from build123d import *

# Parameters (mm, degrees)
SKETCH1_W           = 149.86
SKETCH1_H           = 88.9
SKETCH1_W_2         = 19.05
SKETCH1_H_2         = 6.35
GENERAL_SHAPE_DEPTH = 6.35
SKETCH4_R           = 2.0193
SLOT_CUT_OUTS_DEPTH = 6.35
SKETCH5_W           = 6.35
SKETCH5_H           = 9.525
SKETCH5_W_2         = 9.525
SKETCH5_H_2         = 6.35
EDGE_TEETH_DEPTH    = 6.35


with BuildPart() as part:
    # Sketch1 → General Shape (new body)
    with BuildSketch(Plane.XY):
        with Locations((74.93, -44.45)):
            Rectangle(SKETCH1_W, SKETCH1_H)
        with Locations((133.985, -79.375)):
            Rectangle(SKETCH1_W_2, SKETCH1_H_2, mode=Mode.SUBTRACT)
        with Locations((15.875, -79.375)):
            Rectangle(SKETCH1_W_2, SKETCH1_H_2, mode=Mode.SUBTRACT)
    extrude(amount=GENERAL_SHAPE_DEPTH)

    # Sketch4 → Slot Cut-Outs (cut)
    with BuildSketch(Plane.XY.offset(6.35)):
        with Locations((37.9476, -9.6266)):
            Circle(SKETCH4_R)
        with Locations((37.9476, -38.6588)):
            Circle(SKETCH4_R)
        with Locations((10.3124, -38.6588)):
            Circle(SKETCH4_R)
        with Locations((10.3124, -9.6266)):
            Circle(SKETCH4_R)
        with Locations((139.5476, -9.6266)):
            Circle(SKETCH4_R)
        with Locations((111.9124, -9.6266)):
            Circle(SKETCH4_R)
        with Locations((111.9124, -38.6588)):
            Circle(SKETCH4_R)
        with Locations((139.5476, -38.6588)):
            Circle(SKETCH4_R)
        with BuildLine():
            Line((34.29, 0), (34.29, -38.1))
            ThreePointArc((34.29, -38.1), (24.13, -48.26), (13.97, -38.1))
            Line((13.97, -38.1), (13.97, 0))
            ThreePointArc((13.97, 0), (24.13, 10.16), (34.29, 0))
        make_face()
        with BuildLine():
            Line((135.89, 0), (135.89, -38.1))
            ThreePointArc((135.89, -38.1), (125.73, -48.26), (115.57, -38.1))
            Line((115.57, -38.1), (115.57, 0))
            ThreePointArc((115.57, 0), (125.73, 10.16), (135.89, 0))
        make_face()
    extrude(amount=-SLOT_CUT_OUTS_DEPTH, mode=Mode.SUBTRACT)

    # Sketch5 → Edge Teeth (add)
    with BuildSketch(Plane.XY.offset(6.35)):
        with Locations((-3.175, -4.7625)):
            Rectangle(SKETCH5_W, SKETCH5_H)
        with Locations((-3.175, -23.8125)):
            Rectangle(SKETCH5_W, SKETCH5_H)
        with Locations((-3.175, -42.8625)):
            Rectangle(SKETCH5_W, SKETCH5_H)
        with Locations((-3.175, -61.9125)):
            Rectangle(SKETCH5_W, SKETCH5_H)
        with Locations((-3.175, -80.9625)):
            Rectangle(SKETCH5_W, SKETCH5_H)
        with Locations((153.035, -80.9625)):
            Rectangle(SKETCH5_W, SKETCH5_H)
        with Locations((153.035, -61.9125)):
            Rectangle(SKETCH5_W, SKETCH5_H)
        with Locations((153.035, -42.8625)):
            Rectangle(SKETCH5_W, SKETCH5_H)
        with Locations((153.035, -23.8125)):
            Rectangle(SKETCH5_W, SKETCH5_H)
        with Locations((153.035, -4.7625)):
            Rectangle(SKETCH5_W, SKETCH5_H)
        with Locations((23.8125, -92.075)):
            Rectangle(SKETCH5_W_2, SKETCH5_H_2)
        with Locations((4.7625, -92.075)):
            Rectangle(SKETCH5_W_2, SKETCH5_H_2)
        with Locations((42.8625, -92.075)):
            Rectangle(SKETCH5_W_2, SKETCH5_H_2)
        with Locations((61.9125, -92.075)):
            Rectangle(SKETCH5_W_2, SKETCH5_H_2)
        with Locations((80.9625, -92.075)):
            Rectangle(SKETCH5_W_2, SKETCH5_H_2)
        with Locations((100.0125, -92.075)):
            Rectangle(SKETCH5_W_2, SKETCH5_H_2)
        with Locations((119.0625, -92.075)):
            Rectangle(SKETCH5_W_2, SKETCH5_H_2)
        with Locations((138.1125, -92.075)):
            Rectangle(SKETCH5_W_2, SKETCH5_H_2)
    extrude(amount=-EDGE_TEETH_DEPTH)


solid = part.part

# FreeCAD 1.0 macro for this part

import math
import FreeCAD as App
import Part
import Sketcher
from FreeCAD import Vector
Q = App.Units.Quantity


def add_polygon(sketch, points):
    """Adds a closed chain of lines whose ends are joined by coincident constraints."""
    first, n = sketch.GeometryCount, len(points)
    for a, b in zip(points, points[1:] + points[:1]):
        sketch.addGeometry(Part.LineSegment(App.Vector(*a, 0), App.Vector(*b, 0)), False)
    for i in range(n):
        sketch.addConstraint(Sketcher.Constraint("Coincident", first + i, 2, first + (i + 1) % n, 1))

doc = App.newDocument("Part")
body = doc.addObject("PartDesign::Body", "Body")

sketch1 = body.newObject("Sketcher::SketchObject", "Sketch")
sketch1.AttachmentSupport = (doc.getObject("XY_Plane"), [""])
sketch1.MapMode = "FlatFace"
add_polygon(sketch1, [(0, 0), (0, -89), (150, -89), (150, 0)])
add_polygon(sketch1, [(25, -83), (6, -83), (6, -76), (25, -76)])
add_polygon(sketch1, [(144, -83), (124, -83), (124, -76), (144, -76)])
sketch1.addConstraint([
    Sketcher.Constraint("Vertical", 0),
    Sketcher.Constraint("Horizontal", 1),
    Sketcher.Constraint("Vertical", 2),
    Sketcher.Constraint("Horizontal", 3),
    Sketcher.Constraint("Horizontal", 4),
    Sketcher.Constraint("Vertical", 5),
    Sketcher.Constraint("Horizontal", 6),
    Sketcher.Constraint("Vertical", 7),
    Sketcher.Constraint("Horizontal", 8),
    Sketcher.Constraint("Vertical", 9),
    Sketcher.Constraint("Horizontal", 10),
    Sketcher.Constraint("Vertical", 11),
    Sketcher.Constraint("Coincident", 3, 2, -1, 1),
    Sketcher.Constraint("Horizontal", 7, 2, 8, 2),
    Sketcher.Constraint("Horizontal", 6, 2, 9, 2),
    Sketcher.Constraint("Equal", 6, 8),
    Sketcher.Constraint("DistanceX", 1, 1, 1, 2, Q("5.9 in")),
    Sketcher.Constraint("DistanceY", 0, 2, 0, 1, Q("3.5 in")),
    Sketcher.Constraint("DistanceY", 5, 2, -1, 1, Q("3 in")),
    Sketcher.Constraint("DistanceX", -1, 1, 6, 2, Q("1 in")),
    Sketcher.Constraint("DistanceX", 8, 2, 1, 2, Q("1 in")),
    Sketcher.Constraint("DistanceX", 4, 2, 4, 1, Q("0.75 in")),
    Sketcher.Constraint("DistanceY", 5, 1, 5, 2, Q("0.25 in")),
])
pad1 = body.newObject("PartDesign::Pad", "Pad")
pad1.Profile = sketch1
pad1.Length = Q("0.25 in")

sketch2 = body.newObject("Sketcher::SketchObject", "Sketch001")
sketch2.AttachmentSupport = (doc.getObject("XY_Plane"), [""])
sketch2.MapMode = "FlatFace"
sketch2.AttachmentOffset = App.Placement(Vector(0, 0, 0.25 * 25.4), App.Rotation())
sketch2.addGeometry([
    Part.Circle(Vector(37.9, -9.6, 0), Vector(0, 0, 1), 2),
    Part.Circle(Vector(37.9, -38.7, 0), Vector(0, 0, 1), 2),
    Part.Circle(Vector(10.3, -38.7, 0), Vector(0, 0, 1), 2),
    Part.Circle(Vector(10.3, -9.6, 0), Vector(0, 0, 1), 2),
    Part.Circle(Vector(139.5, -9.6, 0), Vector(0, 0, 1), 2),
    Part.Circle(Vector(111.9, -9.6, 0), Vector(0, 0, 1), 2),
    Part.Circle(Vector(111.9, -38.7, 0), Vector(0, 0, 1), 2),
    Part.Circle(Vector(139.5, -38.7, 0), Vector(0, 0, 1), 2),
    Part.LineSegment(Vector(34.3, -38.1, 0), Vector(34.3, 0, 0)),
    Part.ArcOfCircle(Part.Circle(Vector(24.1, 0, 0), Vector(0, 0, 1), 10.2), math.radians(0), math.radians(180)),
    Part.LineSegment(Vector(14, 0, 0), Vector(14, -38.1, 0)),
    Part.ArcOfCircle(Part.Circle(Vector(24.1, -38.1, 0), Vector(0, 0, 1), 10.2), math.radians(180), math.radians(360)),
    Part.LineSegment(Vector(135.9, -38.1, 0), Vector(135.9, 0, 0)),
    Part.ArcOfCircle(Part.Circle(Vector(125.7, 0, 0), Vector(0, 0, 1), 10.2), math.radians(0), math.radians(180)),
    Part.LineSegment(Vector(115.6, 0, 0), Vector(115.6, -38.1, 0)),
    Part.ArcOfCircle(Part.Circle(Vector(125.7, -38.1, 0), Vector(0, 0, 1), 10.2), math.radians(180), math.radians(360)),
], False)
sketch2.addConstraint([
    Sketcher.Constraint("Tangent", 8, 2, 9, 1),
    Sketcher.Constraint("Tangent", 9, 2, 10, 1),
    Sketcher.Constraint("Tangent", 10, 2, 11, 1),
    Sketcher.Constraint("Tangent", 11, 2, 8, 1),
    Sketcher.Constraint("Tangent", 12, 2, 13, 1),
    Sketcher.Constraint("Tangent", 13, 2, 14, 1),
    Sketcher.Constraint("Tangent", 14, 2, 15, 1),
    Sketcher.Constraint("Tangent", 15, 2, 12, 1),
    Sketcher.Constraint("Vertical", 8),
    Sketcher.Constraint("Vertical", 10),
    Sketcher.Constraint("Vertical", 12),
    Sketcher.Constraint("Vertical", 14),
    Sketcher.Constraint("Equal", 0, 1),
    Sketcher.Constraint("Equal", 1, 2),
    Sketcher.Constraint("Equal", 2, 3),
    Sketcher.Constraint("Equal", 3, 4),
    Sketcher.Constraint("Equal", 4, 5),
    Sketcher.Constraint("Equal", 5, 6),
    Sketcher.Constraint("Equal", 6, 7),
    Sketcher.Constraint("Equal", 11, 13),
    Sketcher.Constraint("PointOnObject", 9, 3, -1),
    Sketcher.Constraint("PointOnObject", 13, 3, -1),
    Sketcher.Constraint("Horizontal", 1, 3, 2, 3),
    Sketcher.Constraint("Horizontal", 0, 3, 3, 3),
    Sketcher.Constraint("Horizontal", 3, 3, 4, 3),
    Sketcher.Constraint("Horizontal", 4, 3, 5, 3),
    Sketcher.Constraint("Horizontal", 2, 3, 6, 3),
    Sketcher.Constraint("Horizontal", 6, 3, 7, 3),
    Sketcher.Constraint("Horizontal", 11, 3, 15, 3),
    Sketcher.Constraint("Vertical", 0, 3, 1, 3),
    Sketcher.Constraint("Vertical", 2, 3, 3, 3),
    Sketcher.Constraint("Vertical", 5, 3, 6, 3),
    Sketcher.Constraint("Vertical", 4, 3, 7, 3),
    Sketcher.Constraint("Radius", 9, Q("0.4 in")),
    Sketcher.Constraint("Diameter", 0, Q("0.159 in")),
    Sketcher.Constraint("DistanceY", 8, 1, 8, 2, Q("1.5 in")),
    Sketcher.Constraint("DistanceX", 0, 3, 4, 3, Q("4 in")),
    Sketcher.Constraint("DistanceX", 3, 3, 5, 3, Q("4 in")),
    Sketcher.Constraint("DistanceX", -1, 1, 9, 3, Q("0.95 in")),
    Sketcher.Constraint("DistanceX", -1, 1, 13, 3, Q("4.95 in")),
    Sketcher.Constraint("DistanceX", -1, 1, 0, 3, Q("1.494 in")),
    Sketcher.Constraint("DistanceY", 0, 3, -1, 1, Q("0.379 in")),
    Sketcher.Constraint("DistanceY", 1, 3, -1, 1, Q("1.522 in")),
    Sketcher.Constraint("DistanceX", -1, 1, 2, 3, Q("0.406 in")),
])
pocket1 = body.newObject("PartDesign::Pocket", "Pocket")
pocket1.Profile = sketch2
pocket1.Length = Q("0.25 in")

sketch3 = body.newObject("Sketcher::SketchObject", "Sketch002")
sketch3.AttachmentSupport = (doc.getObject("XY_Plane"), [""])
sketch3.MapMode = "FlatFace"
sketch3.AttachmentOffset = App.Placement(Vector(0, 0, 0.25 * 25.4), App.Rotation())
add_polygon(sketch3, [(-6, 0), (-6, -10), (0, -10), (0, 0)])
add_polygon(sketch3, [(-6, -19), (-6, -29), (0, -29), (0, -19)])
add_polygon(sketch3, [(-6, -38), (-6, -48), (0, -48), (0, -38)])
add_polygon(sketch3, [(-6, -57), (-6, -67), (0, -67), (0, -57)])
add_polygon(sketch3, [(-6, -76), (-6, -86), (0, -86), (0, -76)])
add_polygon(sketch3, [(150, -76), (150, -86), (156, -86), (156, -76)])
add_polygon(sketch3, [(150, -57), (150, -67), (156, -67), (156, -57)])
add_polygon(sketch3, [(150, -38), (150, -48), (156, -48), (156, -38)])
add_polygon(sketch3, [(150, -19), (150, -29), (156, -29), (156, -19)])
add_polygon(sketch3, [(150, 0), (150, -10), (156, -10), (156, 0)])
add_polygon(sketch3, [(19, -89), (19, -95), (29, -95), (29, -89)])
add_polygon(sketch3, [(0, -89), (0, -95), (10, -95), (10, -89)])
add_polygon(sketch3, [(38, -89), (38, -95), (48, -95), (48, -89)])
add_polygon(sketch3, [(57, -89), (57, -95), (67, -95), (67, -89)])
add_polygon(sketch3, [(76, -89), (76, -95), (86, -95), (86, -89)])
add_polygon(sketch3, [(95, -89), (95, -95), (105, -95), (105, -89)])
add_polygon(sketch3, [(114, -89), (114, -95), (124, -95), (124, -89)])
add_polygon(sketch3, [(133, -89), (133, -95), (143, -95), (143, -89)])
sketch3.addConstraint([
    Sketcher.Constraint("Vertical", 0),
    Sketcher.Constraint("Horizontal", 1),
    Sketcher.Constraint("Vertical", 2),
    Sketcher.Constraint("Horizontal", 3),
    Sketcher.Constraint("Vertical", 4),
    Sketcher.Constraint("Horizontal", 5),
    Sketcher.Constraint("Vertical", 6),
    Sketcher.Constraint("Horizontal", 7),
    Sketcher.Constraint("Vertical", 8),
    Sketcher.Constraint("Horizontal", 9),
    Sketcher.Constraint("Vertical", 10),
    Sketcher.Constraint("Horizontal", 11),
    Sketcher.Constraint("Vertical", 12),
    Sketcher.Constraint("Horizontal", 13),
    Sketcher.Constraint("Vertical", 14),
    Sketcher.Constraint("Horizontal", 15),
    Sketcher.Constraint("Vertical", 16),
    Sketcher.Constraint("Horizontal", 17),
    Sketcher.Constraint("Vertical", 18),
    Sketcher.Constraint("Horizontal", 19),
    Sketcher.Constraint("Vertical", 20),
    Sketcher.Constraint("Horizontal", 21),
    Sketcher.Constraint("Vertical", 22),
    Sketcher.Constraint("Horizontal", 23),
    Sketcher.Constraint("Vertical", 24),
    Sketcher.Constraint("Horizontal", 25),
    Sketcher.Constraint("Vertical", 26),
    Sketcher.Constraint("Horizontal", 27),
    Sketcher.Constraint("Vertical", 28),
    Sketcher.Constraint("Horizontal", 29),
    Sketcher.Constraint("Vertical", 30),
    Sketcher.Constraint("Horizontal", 31),
    Sketcher.Constraint("Vertical", 32),
    Sketcher.Constraint("Horizontal", 33),
    Sketcher.Constraint("Vertical", 34),
    Sketcher.Constraint("Horizontal", 35),
    Sketcher.Constraint("Vertical", 36),
    Sketcher.Constraint("Horizontal", 37),
    Sketcher.Constraint("Vertical", 38),
    Sketcher.Constraint("Horizontal", 39),
    Sketcher.Constraint("Vertical", 40),
    Sketcher.Constraint("Horizontal", 41),
    Sketcher.Constraint("Vertical", 42),
    Sketcher.Constraint("Horizontal", 43),
    Sketcher.Constraint("Vertical", 44),
    Sketcher.Constraint("Horizontal", 45),
    Sketcher.Constraint("Vertical", 46),
    Sketcher.Constraint("Horizontal", 47),
    Sketcher.Constraint("Vertical", 48),
    Sketcher.Constraint("Horizontal", 49),
    Sketcher.Constraint("Vertical", 50),
    Sketcher.Constraint("Horizontal", 51),
    Sketcher.Constraint("Vertical", 52),
    Sketcher.Constraint("Horizontal", 53),
    Sketcher.Constraint("Vertical", 54),
    Sketcher.Constraint("Horizontal", 55),
    Sketcher.Constraint("Vertical", 56),
    Sketcher.Constraint("Horizontal", 57),
    Sketcher.Constraint("Vertical", 58),
    Sketcher.Constraint("Horizontal", 59),
    Sketcher.Constraint("Vertical", 60),
    Sketcher.Constraint("Horizontal", 61),
    Sketcher.Constraint("Vertical", 62),
    Sketcher.Constraint("Horizontal", 63),
    Sketcher.Constraint("Vertical", 64),
    Sketcher.Constraint("Horizontal", 65),
    Sketcher.Constraint("Vertical", 66),
    Sketcher.Constraint("Horizontal", 67),
    Sketcher.Constraint("Vertical", 68),
    Sketcher.Constraint("Horizontal", 69),
    Sketcher.Constraint("Vertical", 70),
    Sketcher.Constraint("Horizontal", 71),
    Sketcher.Constraint("Coincident", 2, 2, -1, 1),
    Sketcher.Constraint("PointOnObject", 5, 2, -2),
    Sketcher.Constraint("PointOnObject", 9, 2, -2),
    Sketcher.Constraint("PointOnObject", 13, 2, -2),
    Sketcher.Constraint("PointOnObject", 17, 2, -2),
    Sketcher.Constraint("PointOnObject", 38, 2, -1),
    Sketcher.Constraint("PointOnObject", 44, 2, -2),
    Sketcher.Constraint("Horizontal", 17, 2, 20, 2),
    Sketcher.Constraint("Horizontal", 19, 2, 22, 2),
    Sketcher.Constraint("Horizontal", 13, 2, 24, 2),
    Sketcher.Constraint("Horizontal", 15, 2, 26, 2),
    Sketcher.Constraint("Horizontal", 9, 2, 28, 2),
    Sketcher.Constraint("Horizontal", 11, 2, 30, 2),
    Sketcher.Constraint("Horizontal", 5, 2, 32, 2),
    Sketcher.Constraint("Horizontal", 7, 2, 34, 2),
    Sketcher.Constraint("Horizontal", 1, 2, 36, 2),
    Sketcher.Constraint("Horizontal", 41, 2, 44, 2),
    Sketcher.Constraint("Horizontal", 43, 2, 46, 2),
    Sketcher.Constraint("Horizontal", 45, 2, 48, 2),
    Sketcher.Constraint("Horizontal", 47, 2, 50, 2),
    Sketcher.Constraint("Horizontal", 49, 2, 52, 2),
    Sketcher.Constraint("Horizontal", 51, 2, 54, 2),
    Sketcher.Constraint("Horizontal", 53, 2, 56, 2),
    Sketcher.Constraint("Horizontal", 55, 2, 58, 2),
    Sketcher.Constraint("Horizontal", 57, 2, 60, 2),
    Sketcher.Constraint("Horizontal", 59, 2, 62, 2),
    Sketcher.Constraint("Horizontal", 61, 2, 64, 2),
    Sketcher.Constraint("Horizontal", 63, 2, 66, 2),
    Sketcher.Constraint("Horizontal", 65, 2, 68, 2),
    Sketcher.Constraint("Horizontal", 67, 2, 70, 2),
    Sketcher.Constraint("Vertical", 3, 2, 4, 2),
    Sketcher.Constraint("Vertical", 7, 2, 8, 2),
    Sketcher.Constraint("Vertical", 11, 2, 12, 2),
    Sketcher.Constraint("Vertical", 15, 2, 16, 2),
    Sketcher.Constraint("Vertical", 23, 2, 24, 2),
    Sketcher.Constraint("Vertical", 22, 2, 25, 2),
    Sketcher.Constraint("Vertical", 27, 2, 28, 2),
    Sketcher.Constraint("Vertical", 26, 2, 29, 2),
    Sketcher.Constraint("Vertical", 31, 2, 32, 2),
    Sketcher.Constraint("Vertical", 30, 2, 33, 2),
    Sketcher.Constraint("Vertical", 35, 2, 36, 2),
    Sketcher.Constraint("Vertical", 34, 2, 37, 2),
    Sketcher.Constraint("Equal", 19, 21),
    Sketcher.Constraint("Equal", 43, 45),
    Sketcher.Constraint("Equal", 47, 49),
    Sketcher.Constraint("Equal", 51, 53),
    Sketcher.Constraint("Equal", 55, 57),
    Sketcher.Constraint("Equal", 59, 61),
    Sketcher.Constraint("Equal", 63, 65),
    Sketcher.Constraint("Equal", 67, 69),
    Sketcher.Constraint("Equal", 71, 0),
    Sketcher.Constraint("Equal", 2, 4),
    Sketcher.Constraint("Equal", 6, 8),
    Sketcher.Constraint("Equal", 10, 12),
    Sketcher.Constraint("Equal", 14, 16),
    Sketcher.Constraint("Equal", 39, 40),
    Sketcher.Constraint("DistanceY", 18, 2, -1, 1, Q("3 in")),
    Sketcher.Constraint("DistanceX", -1, 1, 56, 2, Q("3 in")),
    Sketcher.Constraint("DistanceX", 1, 1, 1, 2, Q("0.25 in")),
    Sketcher.Constraint("DistanceY", 10, 2, -1, 1, Q("1.5 in")),
    Sketcher.Constraint("DistanceX", -1, 1, 20, 2, Q("5.9 in")),
    Sketcher.Constraint("DistanceY", 42, 2, -1, 1, Q("3.5 in")),
    Sketcher.Constraint("DistanceX", -1, 1, 48, 2, Q("1.5 in")),
    Sketcher.Constraint("DistanceX", -1, 1, 64, 2, Q("4.5 in")),
    Sketcher.Constraint("DistanceX", 41, 1, 41, 2, Q("0.375 in")),
    Sketcher.Constraint("DistanceY", 6, 2, -1, 1, Q("0.75 in")),
    Sketcher.Constraint("DistanceY", 14, 2, -1, 1, Q("2.25 in")),
    Sketcher.Constraint("DistanceX", -1, 1, 40, 2, Q("0.75 in")),
    Sketcher.Constraint("DistanceX", -1, 1, 52, 2, Q("2.25 in")),
    Sketcher.Constraint("DistanceX", -1, 1, 60, 2, Q("3.75 in")),
    Sketcher.Constraint("DistanceX", -1, 1, 68, 2, Q("5.25 in")),
])
pad2 = body.newObject("PartDesign::Pad", "Pad001")
pad2.Profile = sketch3
pad2.Length = Q("0.25 in")
pad2.Reversed = True

doc.recompute()
